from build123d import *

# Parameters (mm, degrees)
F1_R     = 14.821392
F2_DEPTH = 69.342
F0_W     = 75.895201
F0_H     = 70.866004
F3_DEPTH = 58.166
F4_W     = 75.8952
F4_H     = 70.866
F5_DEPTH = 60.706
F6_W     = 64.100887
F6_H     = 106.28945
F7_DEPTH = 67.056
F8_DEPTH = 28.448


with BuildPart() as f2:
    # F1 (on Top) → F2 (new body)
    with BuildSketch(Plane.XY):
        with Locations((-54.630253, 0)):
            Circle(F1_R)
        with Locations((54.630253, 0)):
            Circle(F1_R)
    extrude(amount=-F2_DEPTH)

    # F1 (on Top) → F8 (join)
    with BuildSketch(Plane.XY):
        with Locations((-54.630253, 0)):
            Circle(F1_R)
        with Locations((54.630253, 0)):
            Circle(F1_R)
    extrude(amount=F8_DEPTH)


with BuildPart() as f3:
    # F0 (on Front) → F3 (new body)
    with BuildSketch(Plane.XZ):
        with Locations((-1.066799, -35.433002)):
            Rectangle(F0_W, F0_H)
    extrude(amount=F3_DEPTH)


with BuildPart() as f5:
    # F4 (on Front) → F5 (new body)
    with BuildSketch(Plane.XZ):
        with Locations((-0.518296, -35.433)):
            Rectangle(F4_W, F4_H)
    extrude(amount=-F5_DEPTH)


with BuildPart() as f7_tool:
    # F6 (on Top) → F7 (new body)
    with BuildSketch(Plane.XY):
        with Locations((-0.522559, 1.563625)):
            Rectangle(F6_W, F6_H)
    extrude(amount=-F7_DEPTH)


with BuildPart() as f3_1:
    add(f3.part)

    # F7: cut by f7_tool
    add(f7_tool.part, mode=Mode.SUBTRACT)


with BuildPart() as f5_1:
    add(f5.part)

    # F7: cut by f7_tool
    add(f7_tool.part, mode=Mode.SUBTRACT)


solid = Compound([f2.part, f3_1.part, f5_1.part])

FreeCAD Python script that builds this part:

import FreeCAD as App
import Part
import Sketcher
from FreeCAD import Vector
Q = App.Units.Quantity

doc = App.newDocument("Part")
body = doc.addObject("PartDesign::Body", "Body")
body.AllowCompound = True

sketch1 = body.newObject("Sketcher::SketchObject", "Sketch")
sketch1.AttachmentSupport = (doc.getObject("XY_Plane"), [""])
sketch1.MapMode = "FlatFace"
sketch1.addGeometry([
    Part.Circle(Vector(-55, 0, 0), Vector(0, 0, 1), 15),
    Part.Circle(Vector(55, 0, 0), Vector(0, 0, 1), 15),
], False)
sketch1.addConstraint([
    Sketcher.Constraint("Equal", 0, 1),
    Sketcher.Constraint("Symmetric", 0, 3, 1, 3, -1, 1),
    Sketcher.Constraint("PointOnObject", 0, 3, -1),
    Sketcher.Constraint("Diameter", 0, 29.642784),
    Sketcher.Constraint("DistanceX", 0, 3, -1, 1, 54.630253),
])
pad1 = body.newObject("PartDesign::Pad", "Pad")
pad1.Profile = sketch1
pad1.Length = Q("2.73 in")
pad1.Reversed = True

sketch2 = body.newObject("Sketcher::SketchObject", "Sketch001")
sketch2.AttachmentSupport = (doc.getObject("XY_Plane"), [""])
sketch2.MapMode = "FlatFace"
sketch2.addGeometry([
    Part.Circle(Vector(-55, 0, 0), Vector(0, 0, 1), 15),
    Part.Circle(Vector(55, 0, 0), Vector(0, 0, 1), 15),
], False)
sketch2.addConstraint([
    Sketcher.Constraint("Equal", 0, 1),
    Sketcher.Constraint("Symmetric", 0, 3, 1, 3, -1, 1),
    Sketcher.Constraint("PointOnObject", 0, 3, -1),
    Sketcher.Constraint("Diameter", 0, 29.642784),
    Sketcher.Constraint("DistanceX", 0, 3, -1, 1, 54.630253),
])
pad2 = body.newObject("PartDesign::Pad", "Pad001")
pad2.Profile = sketch2
pad2.Length = Q("1.12 in")
body2 = doc.addObject("PartDesign::Body", "Body001")

sketch3 = body2.newObject("Sketcher::SketchObject", "Sketch002")
sketch3.AttachmentSupport = (doc.getObject("XZ_Plane001"), [""])
sketch3.MapMode = "FlatFace"
sketch3.addGeometry([
    Part.LineSegment(Vector(-39, 0, 0), Vector(-39, -71, 0)),
    Part.LineSegment(Vector(-39, -71, 0), Vector(37, -71, 0)),
    Part.LineSegment(Vector(37, -71, 0), Vector(37, 0, 0)),
    Part.LineSegment(Vector(37, 0, 0), Vector(-39, 0, 0)),
], False)
sketch3.addConstraint([
    Sketcher.Constraint("Coincident", 0, 2, 1, 1),
    Sketcher.Constraint("Coincident", 1, 2, 2, 1),
    Sketcher.Constraint("Coincident", 2, 2, 3, 1),
    Sketcher.Constraint("Coincident", 3, 2, 0, 1),
    Sketcher.Constraint("Vertical", 0),
    Sketcher.Constraint("Horizontal", 1),
    Sketcher.Constraint("Vertical", 2),
    Sketcher.Constraint("Horizontal", 3),
    Sketcher.Constraint("PointOnObject", 2, 2, -1),
    Sketcher.Constraint("DistanceY", 0, 2, 0, 1, Q("2.7900002 in")),
    Sketcher.Constraint("DistanceX", 1, 1, 1, 2, Q("2.988 in")),
    Sketcher.Constraint("DistanceX", 0, 2, -1, 1, Q("1.536 in")),
])
pad3 = body2.newObject("PartDesign::Pad", "Pad002")
pad3.Profile = sketch3
pad3.Length = Q("2.29 in")
body3 = doc.addObject("PartDesign::Body", "Body002")

sketch4 = body3.newObject("Sketcher::SketchObject", "Sketch003")
sketch4.AttachmentSupport = (doc.getObject("XZ_Plane002"), [""])
sketch4.MapMode = "FlatFace"
sketch4.addGeometry([
    Part.LineSegment(Vector(-38, 0, 0), Vector(-38, -71, 0)),
    Part.LineSegment(Vector(-38, -71, 0), Vector(37, -71, 0)),
    Part.LineSegment(Vector(37, -71, 0), Vector(37, 0, 0)),
    Part.LineSegment(Vector(37, 0, 0), Vector(-38, 0, 0)),
], False)
sketch4.addConstraint([
    Sketcher.Constraint("Coincident", 0, 2, 1, 1),
    Sketcher.Constraint("Coincident", 1, 2, 2, 1),
    Sketcher.Constraint("Coincident", 2, 2, 3, 1),
    Sketcher.Constraint("Coincident", 3, 2, 0, 1),
    Sketcher.Constraint("Vertical", 0),
    Sketcher.Constraint("Horizontal", 1),
    Sketcher.Constraint("Vertical", 2),
    Sketcher.Constraint("Horizontal", 3),
    Sketcher.Constraint("PointOnObject", 2, 2, -1),
    Sketcher.Constraint("DistanceY", 0, 2, 0, 1, Q("2.79 in")),
    Sketcher.Constraint("DistanceX", 1, 1, 1, 2, Q("2.988 in")),
    Sketcher.Constraint("DistanceX", 0, 2, -1, 1, 38.465896),
])
pad4 = body3.newObject("PartDesign::Pad", "Pad003")
pad4.Profile = sketch4
pad4.Length = Q("2.39 in")
pad4.Reversed = True
body4 = doc.addObject("PartDesign::Body", "Body003")

sketch5 = body4.newObject("Sketcher::SketchObject", "Sketch004")
sketch5.AttachmentSupport = (doc.getObject("XY_Plane003"), [""])
sketch5.MapMode = "FlatFace"
sketch5.addGeometry([
    Part.LineSegment(Vector(-33, 55, 0), Vector(-33, -52, 0)),
    Part.LineSegment(Vector(-33, -52, 0), Vector(32, -52, 0)),
    Part.LineSegment(Vector(32, -52, 0), Vector(32, 55, 0)),
    Part.LineSegment(Vector(32, 55, 0), Vector(-33, 55, 0)),
], False)
sketch5.addConstraint([
    Sketcher.Constraint("Coincident", 0, 2, 1, 1),
    Sketcher.Constraint("Coincident", 1, 2, 2, 1),
    Sketcher.Constraint("Coincident", 2, 2, 3, 1),
    Sketcher.Constraint("Coincident", 3, 2, 0, 1),
    Sketcher.Constraint("Vertical", 0),
    Sketcher.Constraint("Horizontal", 1),
    Sketcher.Constraint("Vertical", 2),
    Sketcher.Constraint("Horizontal", 3),
    Sketcher.Constraint("DistanceY", 0, 2, 0, 1, 106.28945),
    Sketcher.Constraint("DistanceY", 0, 2, -1, 1, 51.5811),
    Sketcher.Constraint("DistanceX", 1, 1, 1, 2, 64.100887),
    Sketcher.Constraint("DistanceX", 0, 2, -1, 1, 32.573003),
])
pad5 = body4.newObject("PartDesign::Pad", "Pad004")
pad5.Profile = sketch5
pad5.Length = Q("2.64 in")
pad5.Reversed = True
doc.recompute()

body5 = doc.addObject("PartDesign::Body", "Body004")
body5.BaseFeature = body4
boolean = body2.newObject("PartDesign::Boolean", "Boolean")
boolean.Type = "Cut"
boolean.addObjects([body5])
doc.recompute()

boolean2 = body3.newObject("PartDesign::Boolean", "Boolean001")
boolean2.Type = "Cut"
boolean2.addObjects([body4])

doc.recompute()
